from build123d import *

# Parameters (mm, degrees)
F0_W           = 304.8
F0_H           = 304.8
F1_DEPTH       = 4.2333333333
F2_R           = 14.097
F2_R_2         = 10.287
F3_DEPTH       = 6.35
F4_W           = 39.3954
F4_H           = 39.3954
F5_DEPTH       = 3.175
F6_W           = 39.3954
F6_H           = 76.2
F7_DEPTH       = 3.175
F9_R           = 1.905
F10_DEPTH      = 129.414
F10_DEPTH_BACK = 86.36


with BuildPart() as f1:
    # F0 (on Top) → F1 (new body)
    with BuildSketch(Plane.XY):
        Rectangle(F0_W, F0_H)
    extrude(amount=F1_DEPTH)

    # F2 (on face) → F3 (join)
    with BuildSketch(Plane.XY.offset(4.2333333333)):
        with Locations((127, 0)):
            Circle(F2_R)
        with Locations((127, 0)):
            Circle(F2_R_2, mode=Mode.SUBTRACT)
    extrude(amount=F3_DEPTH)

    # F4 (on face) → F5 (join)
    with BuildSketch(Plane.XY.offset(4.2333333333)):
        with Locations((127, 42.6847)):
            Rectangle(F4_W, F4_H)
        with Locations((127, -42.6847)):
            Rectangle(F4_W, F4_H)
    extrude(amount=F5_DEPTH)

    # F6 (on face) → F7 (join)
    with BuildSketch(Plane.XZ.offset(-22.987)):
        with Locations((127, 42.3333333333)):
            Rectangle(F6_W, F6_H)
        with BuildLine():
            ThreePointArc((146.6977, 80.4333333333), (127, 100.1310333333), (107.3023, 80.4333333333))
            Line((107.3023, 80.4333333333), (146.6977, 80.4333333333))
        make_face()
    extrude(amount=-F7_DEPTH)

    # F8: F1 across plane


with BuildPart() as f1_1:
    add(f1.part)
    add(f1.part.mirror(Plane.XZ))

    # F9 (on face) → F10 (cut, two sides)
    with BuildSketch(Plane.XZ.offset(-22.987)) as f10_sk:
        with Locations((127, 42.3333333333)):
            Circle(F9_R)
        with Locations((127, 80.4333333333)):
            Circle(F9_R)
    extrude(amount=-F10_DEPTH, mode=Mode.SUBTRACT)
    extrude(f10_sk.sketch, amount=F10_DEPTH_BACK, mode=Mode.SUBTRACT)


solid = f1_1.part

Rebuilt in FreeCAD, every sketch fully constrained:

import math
import FreeCAD as App
import Part
import Sketcher

V = App.Vector
Q = App.Units.Quantity

doc = App.newDocument("Part")
body = doc.addObject("PartDesign::Body", "Body")

sketch1 = body.newObject("Sketcher::SketchObject", "Sketch")
sketch1.AttachmentSupport = (doc.getObject("XY_Plane"), [""])
sketch1.MapMode = "FlatFace"
sketch1.addGeometry([
    Part.LineSegment(V(-152, 152, 0), V(-152, -152, 0)),
    Part.LineSegment(V(-152, -152, 0), V(152, -152, 0)),
    Part.LineSegment(V(152, -152, 0), V(152, 152, 0)),
    Part.LineSegment(V(152, 152, 0), V(-152, 152, 0)),
], False)
sketch1.addConstraint([
    Sketcher.Constraint("Coincident", 0, 2, 1, 1),
    Sketcher.Constraint("Coincident", 1, 2, 2, 1),
    Sketcher.Constraint("Coincident", 2, 2, 3, 1),
    Sketcher.Constraint("Coincident", 3, 2, 0, 1),
    Sketcher.Constraint("Vertical", 0),
    Sketcher.Constraint("Horizontal", 1),
    Sketcher.Constraint("Vertical", 2),
    Sketcher.Constraint("Horizontal", 3),
    Sketcher.Constraint("Symmetric", 0, 2, 2, 2, -1, 1),
    Sketcher.Constraint("Equal", 3, 0),
    Sketcher.Constraint("DistanceX", 1, 1, 1, 2, Q("12 in")),
])
pad1 = body.newObject("PartDesign::Pad", "Pad")
pad1.Profile = sketch1
pad1.Length = 4.233333

sketch2 = body.newObject("Sketcher::SketchObject", "Sketch001")
sketch2.AttachmentSupport = (doc.getObject("XY_Plane"), [""])
sketch2.MapMode = "FlatFace"
sketch2.AttachmentOffset = App.Placement(V(0, 0, 4.233333), App.Rotation())
sketch2.addGeometry([
    Part.Circle(V(127, 0, 0), V(0, 0, 1), 14),
    Part.Circle(V(127, 0, 0), V(0, 0, 1), 10),
], False)
sketch2.addConstraint([
    Sketcher.Constraint("Coincident", 1, 3, 0, 3),
    Sketcher.Constraint("PointOnObject", 0, 3, -1),
    Sketcher.Constraint("Diameter", 0, Q("1.11 in")),
    Sketcher.Constraint("Diameter", 1, Q("0.81 in")),
    Sketcher.Constraint("DistanceX", -1, 1, 0, 3, Q("5 in")),
])
pad2 = body.newObject("PartDesign::Pad", "Pad001")
pad2.Profile = sketch2
pad2.Length = Q("0.25 in")

sketch3 = body.newObject("Sketcher::SketchObject", "Sketch002")
sketch3.AttachmentSupport = (doc.getObject("XY_Plane"), [""])
sketch3.MapMode = "FlatFace"
sketch3.AttachmentOffset = App.Placement(V(0, 0, 4.233333), App.Rotation())
sketch3.addGeometry([
    Part.LineSegment(V(107, 62, 0), V(107, 23, 0)),
    Part.LineSegment(V(107, 23, 0), V(147, 23, 0)),
    Part.LineSegment(V(147, 23, 0), V(147, 62, 0)),
    Part.LineSegment(V(147, 62, 0), V(107, 62, 0)),
    Part.LineSegment(V(107, -23, 0), V(107, -62, 0)),
    Part.LineSegment(V(107, -62, 0), V(147, -62, 0)),
    Part.LineSegment(V(147, -62, 0), V(147, -23, 0)),
    Part.LineSegment(V(147, -23, 0), V(107, -23, 0)),
], False)
sketch3.addConstraint([
    Sketcher.Constraint("Coincident", 0, 2, 1, 1),
    Sketcher.Constraint("Coincident", 1, 2, 2, 1),
    Sketcher.Constraint("Coincident", 2, 2, 3, 1),
    Sketcher.Constraint("Coincident", 3, 2, 0, 1),
    Sketcher.Constraint("Coincident", 4, 2, 5, 1),
    Sketcher.Constraint("Coincident", 5, 2, 6, 1),
    Sketcher.Constraint("Coincident", 6, 2, 7, 1),
    Sketcher.Constraint("Coincident", 7, 2, 4, 1),
    Sketcher.Constraint("Vertical", 0),
    Sketcher.Constraint("Horizontal", 1),
    Sketcher.Constraint("Vertical", 2),
    Sketcher.Constraint("Horizontal", 3),
    Sketcher.Constraint("Vertical", 4),
    Sketcher.Constraint("Horizontal", 5),
    Sketcher.Constraint("Vertical", 6),
    Sketcher.Constraint("Horizontal", 7),
    Sketcher.Constraint("Symmetric", 3, 2, 4, 2, -1),
    Sketcher.Constraint("Symmetric", 1, 2, 6, 2, -1),
    Sketcher.Constraint("Equal", 7, 0),
    Sketcher.Constraint("DistanceX", 1, 1, 1, 2, Q("1.551 in")),
    Sketcher.Constraint("DistanceY", 6, 2, 1, 2, Q("1.81 in")),
    Sketcher.Constraint("DistanceX", -1, 1, 0, 2, Q("4.2245 in")),
])
pad3 = body.newObject("PartDesign::Pad", "Pad002")
pad3.Profile = sketch3
pad3.Length = Q("0.125 in")

sketch4 = body.newObject("Sketcher::SketchObject", "Sketch003")
sketch4.AttachmentSupport = (doc.getObject("XZ_Plane"), [""])
sketch4.MapMode = "FlatFace"
sketch4.AttachmentOffset = App.Placement(V(0, 0, -0.905 * 25.4), App.Rotation())
sketch4.addGeometry([
    Part.LineSegment(V(107, 80, 0), V(107, 4, 0)),
    Part.LineSegment(V(107, 4, 0), V(147, 4, 0)),
    Part.LineSegment(V(147, 4, 0), V(147, 80, 0)),
    Part.ArcOfCircle(Part.Circle(V(127, 80, 0), V(0, 0, 1), 20), math.radians(0), math.radians(180)),
], False)
sketch4.addConstraint([
    Sketcher.Constraint("Coincident", 0, 2, 1, 1),
    Sketcher.Constraint("Coincident", 1, 2, 2, 1),
    Sketcher.Constraint("Tangent", 2, 2, 3, 1),
    Sketcher.Constraint("Tangent", 3, 2, 0, 1),
    Sketcher.Constraint("Vertical", 0),
    Sketcher.Constraint("Horizontal", 1),
    Sketcher.Constraint("Vertical", 2),
    Sketcher.Constraint("DistanceY", 0, 2, 0, 1, Q("3 in")),
    Sketcher.Constraint("DistanceX", -1, 1, 3, 3, Q("5 in")),
    Sketcher.Constraint("Radius", 3, Q("0.7755 in")),
    Sketcher.Constraint("DistanceY", -1, 1, 3, 3, Q("80.433333 mm")),
])
pad4 = body.newObject("PartDesign::Pad", "Pad003")
pad4.Profile = sketch4
pad4.Length = Q("0.125 in")
pad4.Reversed = True
body2 = doc.addObject("PartDesign::Body", "Body001")
doc.recompute()

body2.BaseFeature = body
doc.recompute()

mirroring = doc.addObject("Part::Mirroring", "Mirroring")
mirroring.Source = body
mirroring.Base = V(0, 0, 0)
mirroring.Normal = V(0, -1, 0)
body3 = doc.addObject("PartDesign::Body", "Body002")
body3.BaseFeature = mirroring
boolean = body2.newObject("PartDesign::Boolean", "Boolean")
boolean.Type = "Fuse"
boolean.addObjects([body3])
doc.recompute()

sketch5 = body2.newObject("Sketcher::SketchObject", "Sketch004")
sketch5.AttachmentSupport = (doc.getObject("XZ_Plane001"), [""])
sketch5.MapMode = "FlatFace"
sketch5.AttachmentOffset = App.Placement(V(0, 0, -0.905 * 25.4), App.Rotation())
sketch5.addGeometry([
    Part.Circle(V(127, 42.3, 0), V(0, 0, 1), 1.9),
    Part.Circle(V(127, 80.4, 0), V(0, 0, 1), 1.9),
], False)
sketch5.addConstraint([
    Sketcher.Constraint("Equal", 0, 1),
    Sketcher.Constraint("Vertical", 0, 3, 1, 3),
    Sketcher.Constraint("Diameter", 0, Q("0.15 in")),
    Sketcher.Constraint("DistanceX", -1, 1, 0, 3, Q("5 in")),
    Sketcher.Constraint("DistanceY", 0, 3, 1, 3, Q("1.5 in")),
    Sketcher.Constraint("DistanceY", -1, 1, 0, 3, Q("42.333333 mm")),
])
pocket1 = body2.newObject("PartDesign::Pocket", "Pocket")
pocket1.Profile = sketch5
pocket1.Type = "ThroughAll"
pocket1.Midplane = True
mirroring.Visibility = False

doc.recompute()
